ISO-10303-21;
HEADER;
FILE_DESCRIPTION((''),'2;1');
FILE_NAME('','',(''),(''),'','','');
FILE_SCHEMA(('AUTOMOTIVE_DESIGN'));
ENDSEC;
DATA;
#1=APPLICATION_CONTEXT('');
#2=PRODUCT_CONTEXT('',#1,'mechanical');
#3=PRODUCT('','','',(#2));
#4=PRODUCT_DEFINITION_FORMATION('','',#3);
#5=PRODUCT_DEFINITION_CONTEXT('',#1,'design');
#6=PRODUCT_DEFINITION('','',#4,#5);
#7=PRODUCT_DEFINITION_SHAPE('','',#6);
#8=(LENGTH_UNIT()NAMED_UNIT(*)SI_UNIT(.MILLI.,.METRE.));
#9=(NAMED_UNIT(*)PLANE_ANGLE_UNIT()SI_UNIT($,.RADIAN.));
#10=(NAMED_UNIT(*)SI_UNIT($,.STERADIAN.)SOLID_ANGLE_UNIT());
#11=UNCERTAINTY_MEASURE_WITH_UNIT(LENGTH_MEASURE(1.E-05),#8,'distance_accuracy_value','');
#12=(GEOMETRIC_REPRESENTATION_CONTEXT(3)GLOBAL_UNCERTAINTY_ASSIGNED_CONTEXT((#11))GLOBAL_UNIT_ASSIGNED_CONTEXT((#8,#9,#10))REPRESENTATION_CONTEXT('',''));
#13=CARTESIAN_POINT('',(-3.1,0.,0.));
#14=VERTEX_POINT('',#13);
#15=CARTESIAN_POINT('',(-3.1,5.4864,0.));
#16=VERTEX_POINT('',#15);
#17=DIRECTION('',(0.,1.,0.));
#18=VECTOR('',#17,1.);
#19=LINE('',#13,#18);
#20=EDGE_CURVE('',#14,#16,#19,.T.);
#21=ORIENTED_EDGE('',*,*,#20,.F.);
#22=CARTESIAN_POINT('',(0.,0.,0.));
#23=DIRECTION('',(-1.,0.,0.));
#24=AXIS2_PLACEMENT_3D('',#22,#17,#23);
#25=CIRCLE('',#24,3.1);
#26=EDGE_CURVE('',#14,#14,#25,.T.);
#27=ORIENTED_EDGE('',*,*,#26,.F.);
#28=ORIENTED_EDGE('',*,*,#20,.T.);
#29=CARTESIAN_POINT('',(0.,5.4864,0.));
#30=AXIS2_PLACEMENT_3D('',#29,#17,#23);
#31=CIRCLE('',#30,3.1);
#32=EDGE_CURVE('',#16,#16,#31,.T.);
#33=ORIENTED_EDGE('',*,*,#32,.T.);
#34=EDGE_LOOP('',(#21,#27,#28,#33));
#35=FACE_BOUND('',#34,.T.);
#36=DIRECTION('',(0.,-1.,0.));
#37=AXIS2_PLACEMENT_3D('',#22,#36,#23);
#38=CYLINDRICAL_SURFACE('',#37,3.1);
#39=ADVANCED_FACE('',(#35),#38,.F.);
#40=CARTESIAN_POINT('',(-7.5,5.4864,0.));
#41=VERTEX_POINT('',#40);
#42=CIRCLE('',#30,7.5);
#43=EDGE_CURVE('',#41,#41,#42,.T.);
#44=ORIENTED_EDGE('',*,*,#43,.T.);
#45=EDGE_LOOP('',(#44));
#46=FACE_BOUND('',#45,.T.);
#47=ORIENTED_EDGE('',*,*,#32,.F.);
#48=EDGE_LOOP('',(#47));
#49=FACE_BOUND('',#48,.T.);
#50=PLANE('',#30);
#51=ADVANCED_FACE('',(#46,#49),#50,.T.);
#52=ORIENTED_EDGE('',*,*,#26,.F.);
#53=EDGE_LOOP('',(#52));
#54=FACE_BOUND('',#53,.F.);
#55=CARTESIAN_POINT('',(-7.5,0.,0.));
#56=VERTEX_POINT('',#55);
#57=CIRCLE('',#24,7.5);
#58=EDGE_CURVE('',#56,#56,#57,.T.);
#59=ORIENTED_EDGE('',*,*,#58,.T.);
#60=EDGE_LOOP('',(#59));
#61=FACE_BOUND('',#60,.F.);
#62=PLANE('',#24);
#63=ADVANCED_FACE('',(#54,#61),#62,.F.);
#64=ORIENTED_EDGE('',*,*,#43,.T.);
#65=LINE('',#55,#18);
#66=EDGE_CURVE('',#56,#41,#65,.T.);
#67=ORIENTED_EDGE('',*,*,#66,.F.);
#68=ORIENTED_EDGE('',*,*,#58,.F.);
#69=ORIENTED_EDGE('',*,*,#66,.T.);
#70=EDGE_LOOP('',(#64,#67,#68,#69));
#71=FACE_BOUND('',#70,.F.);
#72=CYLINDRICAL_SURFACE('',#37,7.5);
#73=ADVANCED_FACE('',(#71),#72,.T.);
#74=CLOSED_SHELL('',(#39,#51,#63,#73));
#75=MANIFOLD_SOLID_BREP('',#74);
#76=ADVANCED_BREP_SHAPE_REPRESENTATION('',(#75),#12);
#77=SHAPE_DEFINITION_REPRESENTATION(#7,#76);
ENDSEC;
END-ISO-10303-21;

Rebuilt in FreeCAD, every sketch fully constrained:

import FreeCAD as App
import Part
import Sketcher

V = App.Vector
Q = App.Units.Quantity

doc = App.newDocument("Part")
params = doc.addObject("Spreadsheet::Sheet", "Params")
for row, (alias, value) in enumerate([
    ("sketch1_diameter", "15 mm"),
    ("sketch1_diameter2", "6.2 mm"),
    ("pad1_length", "5.4864 mm"),
], start=1):
    params.set(f"A{row}", alias)
    params.set(f"B{row}", "=" + value)
    params.setAlias(f"B{row}", alias)

body = doc.addObject("PartDesign::Body", "Body")

# Sketch on XZ plane
sketch1 = doc.addObject("Sketcher::SketchObject", "Sketch")
body.addObject(sketch1)
sketch1.AttachmentSupport = (doc.XZ_Plane, [""])
sketch1.MapMode = "FlatFace"
sketch1.addGeometry([
    Part.Circle(V(0, 0, 0), V(0, 0, 1), 7.5),
    Part.Circle(V(0, 0, 0), V(0, 0, 1), 3.1),
], False)
sketch1.addConstraint([
    Sketcher.Constraint("Coincident", 0, 3, -1, 1),
    Sketcher.Constraint("Coincident", 1, 3, -1, 1),
    Sketcher.Constraint("Diameter", 0, Q("15 mm")),
    Sketcher.Constraint("Diameter", 1, Q("6.2 mm")),
])
sketch1.setExpression("Constraints[2]", "Params.sketch1_diameter")
sketch1.setExpression("Constraints[3]", "Params.sketch1_diameter2")
pad1 = doc.addObject("PartDesign::Pad", "Pad")
body.addObject(pad1)
pad1.Profile = sketch1
pad1.setExpression("Length", "Params.pad1_length")
pad1.Reversed = True

doc.recompute()
